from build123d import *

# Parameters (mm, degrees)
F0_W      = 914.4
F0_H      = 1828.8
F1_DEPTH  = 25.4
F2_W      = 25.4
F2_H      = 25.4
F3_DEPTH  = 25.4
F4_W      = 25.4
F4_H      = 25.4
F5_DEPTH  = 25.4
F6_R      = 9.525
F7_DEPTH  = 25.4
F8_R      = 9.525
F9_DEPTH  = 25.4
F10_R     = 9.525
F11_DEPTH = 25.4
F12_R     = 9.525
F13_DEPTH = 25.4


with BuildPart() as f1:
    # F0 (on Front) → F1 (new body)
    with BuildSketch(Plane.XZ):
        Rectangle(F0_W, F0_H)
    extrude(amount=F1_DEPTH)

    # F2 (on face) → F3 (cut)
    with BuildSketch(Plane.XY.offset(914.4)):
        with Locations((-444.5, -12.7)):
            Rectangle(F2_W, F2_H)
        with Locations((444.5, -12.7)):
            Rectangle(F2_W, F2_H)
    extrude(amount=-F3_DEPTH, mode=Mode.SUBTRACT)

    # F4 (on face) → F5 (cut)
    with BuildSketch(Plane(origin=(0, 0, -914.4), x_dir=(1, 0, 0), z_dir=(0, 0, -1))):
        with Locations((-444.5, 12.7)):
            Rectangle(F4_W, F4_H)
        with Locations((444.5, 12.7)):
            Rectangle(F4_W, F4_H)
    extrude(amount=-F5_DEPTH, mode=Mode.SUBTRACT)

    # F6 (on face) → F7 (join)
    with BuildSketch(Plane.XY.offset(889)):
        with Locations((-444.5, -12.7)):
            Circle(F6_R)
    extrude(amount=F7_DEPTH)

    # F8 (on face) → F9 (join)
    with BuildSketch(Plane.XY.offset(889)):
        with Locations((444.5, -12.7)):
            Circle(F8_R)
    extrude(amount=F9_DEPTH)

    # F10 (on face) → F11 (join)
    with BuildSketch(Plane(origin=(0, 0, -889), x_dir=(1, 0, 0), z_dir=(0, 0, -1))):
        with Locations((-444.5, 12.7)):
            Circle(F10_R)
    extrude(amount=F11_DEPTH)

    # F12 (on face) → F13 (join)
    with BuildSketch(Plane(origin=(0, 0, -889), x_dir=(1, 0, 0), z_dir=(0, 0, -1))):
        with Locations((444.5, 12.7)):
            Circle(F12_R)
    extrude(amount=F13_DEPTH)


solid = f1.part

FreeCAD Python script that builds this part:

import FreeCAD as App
import Part
import Sketcher
Q = App.Units.Quantity


def add_polygon(sketch, points):
    """Adds a closed chain of lines whose ends are joined by coincident constraints."""
    first, n = sketch.GeometryCount, len(points)
    for a, b in zip(points, points[1:] + points[:1]):
        sketch.addGeometry(Part.LineSegment(App.Vector(*a, 0), App.Vector(*b, 0)), False)
    for i in range(n):
        sketch.addConstraint(Sketcher.Constraint("Coincident", first + i, 2, first + (i + 1) % n, 1))

doc = App.newDocument("Part")
params = doc.addObject("Spreadsheet::Sheet", "Params")
for row, (alias, value) in enumerate([
    ("sketch1_width", "36 in"),
    ("sketch1_height", "72 in"),
    ("pad1_length", "1 in"),
    ("sketch2_width", "1 in"),
    ("pocket1_length", "1 in"),
    ("sketch3_width", "1 in"),
    ("pocket2_length", "1 in"),
    ("sketch4_diameter", "0.75 in"),
    ("pad2_length", "1 in"),
    ("sketch5_diameter", "0.75 in"),
    ("pad3_length", "1 in"),
    ("sketch6_diameter", "0.75 in"),
    ("pad4_length", "1 in"),
    ("sketch7_diameter", "0.75 in"),
    ("pad5_length", "1 in"),
], start=1):
    params.set(f"A{row}", alias)
    params.set(f"B{row}", "=" + value)
    params.setAlias(f"B{row}", alias)

body = doc.addObject("PartDesign::Body", "Body")

# Sketch on XZ plane
sketch1 = body.newObject("Sketcher::SketchObject", "Sketch")
sketch1.AttachmentSupport = (doc.getObject("XZ_Plane"), [""])
sketch1.MapMode = "FlatFace"
add_polygon(sketch1, [(-457, 914), (-457, -914), (457, -914), (457, 914)])  # lines 0-3
sketch1.addConstraint(Sketcher.Constraint("Vertical", 0))
sketch1.addConstraint(Sketcher.Constraint("Horizontal", 1))
sketch1.addConstraint(Sketcher.Constraint("Vertical", 2))
sketch1.addConstraint(Sketcher.Constraint("Horizontal", 3))
sketch1.addConstraint(Sketcher.Constraint("Symmetric", 0, 2, 2, 2, -1, 1))
sketch1.addConstraint(Sketcher.Constraint("DistanceX", 1, 1, 1, 2, Q("36 in")))
sketch1.addConstraint(Sketcher.Constraint("DistanceY", 0, 2, 0, 1, Q("72 in")))
sketch1.setExpression("Constraints[9]", "Params.sketch1_width")
sketch1.setExpression("Constraints[10]", "Params.sketch1_height")
pad1 = body.newObject("PartDesign::Pad", "Pad")
pad1.Profile = sketch1
pad1.setExpression("Length", "Params.pad1_length")

# Sketch on XY plane
sketch2 = body.newObject("Sketcher::SketchObject", "Sketch001")
sketch2.AttachmentSupport = (doc.getObject("XY_Plane"), [""])
sketch2.MapMode = "FlatFace"
sketch2.AttachmentOffset = App.Placement(App.Vector(0, 0, 36 * 25.4), App.Rotation())
add_polygon(sketch2, [(-457, 0), (-457, -25), (-432, -25), (-432, 0)])  # lines 0-3
add_polygon(sketch2, [(432, 0), (432, -25), (457, -25), (457, 0)])  # lines 4-7
sketch2.addConstraint(Sketcher.Constraint("Vertical", 0))
sketch2.addConstraint(Sketcher.Constraint("Horizontal", 1))
sketch2.addConstraint(Sketcher.Constraint("Vertical", 2))
sketch2.addConstraint(Sketcher.Constraint("Horizontal", 3))
sketch2.addConstraint(Sketcher.Constraint("Vertical", 4))
sketch2.addConstraint(Sketcher.Constraint("Horizontal", 5))
sketch2.addConstraint(Sketcher.Constraint("Vertical", 6))
sketch2.addConstraint(Sketcher.Constraint("Horizontal", 7))
sketch2.addConstraint(Sketcher.Constraint("Symmetric", 3, 2, 6, 2, -1, 1))
sketch2.addConstraint(Sketcher.Constraint("Symmetric", 1, 2, 4, 2, -2))
sketch2.addConstraint(Sketcher.Constraint("PointOnObject", 2, 2, -1))
sketch2.addConstraint(Sketcher.Constraint("Equal", 7, 0))
sketch2.addConstraint(Sketcher.Constraint("DistanceX", 1, 1, 1, 2, Q("1 in")))
sketch2.addConstraint(Sketcher.Constraint("DistanceX", 0, 2, -1, 1, Q("18 in")))
sketch2.setExpression("Constraints[20]", "Params.sketch2_width")
pocket1 = body.newObject("PartDesign::Pocket", "Pocket")
pocket1.Profile = sketch2
pocket1.setExpression("Length", "Params.pocket1_length")

# Sketch on XY plane
sketch3 = body.newObject("Sketcher::SketchObject", "Sketch002")
sketch3.AttachmentSupport = (doc.getObject("XY_Plane"), [""])
sketch3.MapMode = "FlatFace"
sketch3.AttachmentOffset = App.Placement(App.Vector(0, 0, -36 * 25.4), App.Rotation())
add_polygon(sketch3, [(-457, -25), (-457, 0), (-432, 0), (-432, -25)])  # lines 0-3
add_polygon(sketch3, [(432, -25), (432, 0), (457, 0), (457, -25)])  # lines 4-7
sketch3.addConstraint(Sketcher.Constraint("Vertical", 0))
sketch3.addConstraint(Sketcher.Constraint("Horizontal", 1))
sketch3.addConstraint(Sketcher.Constraint("Vertical", 2))
sketch3.addConstraint(Sketcher.Constraint("Horizontal", 3))
sketch3.addConstraint(Sketcher.Constraint("Vertical", 4))
sketch3.addConstraint(Sketcher.Constraint("Horizontal", 5))
sketch3.addConstraint(Sketcher.Constraint("Vertical", 6))
sketch3.addConstraint(Sketcher.Constraint("Horizontal", 7))
sketch3.addConstraint(Sketcher.Constraint("Symmetric", 1, 2, 4, 2, -1, 1))
sketch3.addConstraint(Sketcher.Constraint("Symmetric", 0, 2, 5, 2, -2))
sketch3.addConstraint(Sketcher.Constraint("Horizontal", 3, 2, 6, 2))
sketch3.addConstraint(Sketcher.Constraint("Equal", 7, 0))
sketch3.addConstraint(Sketcher.Constraint("DistanceX", 1, 1, 1, 2, Q("1 in")))
sketch3.addConstraint(Sketcher.Constraint("DistanceX", 0, 2, -1, 1, Q("18 in")))
sketch3.setExpression("Constraints[20]", "Params.sketch3_width")
pocket2 = body.newObject("PartDesign::Pocket", "Pocket001")
pocket2.Profile = sketch3
pocket2.setExpression("Length", "Params.pocket2_length")
pocket2.Reversed = True

# Sketch on XY plane
sketch4 = body.newObject("Sketcher::SketchObject", "Sketch003")
sketch4.AttachmentSupport = (doc.getObject("XY_Plane"), [""])
sketch4.MapMode = "FlatFace"
sketch4.AttachmentOffset = App.Placement(App.Vector(0, 0, 35 * 25.4), App.Rotation())
sketch4.addGeometry(Part.Circle(App.Vector(-444, -13, 0), App.Vector(0, 0, 1), 10), False)
sketch4.addConstraint(Sketcher.Constraint("Diameter", 0, Q("0.75 in")))
sketch4.addConstraint(Sketcher.Constraint("DistanceX", 0, 3, -1, 1, Q("17.5 in")))
sketch4.addConstraint(Sketcher.Constraint("DistanceY", 0, 3, -1, 1, Q("0.5 in")))
sketch4.setExpression("Constraints[0]", "Params.sketch4_diameter")
pad2 = body.newObject("PartDesign::Pad", "Pad001")
pad2.Profile = sketch4
pad2.setExpression("Length", "Params.pad2_length")

# Sketch on XY plane
sketch5 = body.newObject("Sketcher::SketchObject", "Sketch004")
sketch5.AttachmentSupport = (doc.getObject("XY_Plane"), [""])
sketch5.MapMode = "FlatFace"
sketch5.AttachmentOffset = App.Placement(App.Vector(0, 0, 35 * 25.4), App.Rotation())
sketch5.addGeometry(Part.Circle(App.Vector(444, -13, 0), App.Vector(0, 0, 1), 10), False)
sketch5.addConstraint(Sketcher.Constraint("Diameter", 0, Q("0.75 in")))
sketch5.addConstraint(Sketcher.Constraint("DistanceX", -1, 1, 0, 3, Q("17.5 in")))
sketch5.addConstraint(Sketcher.Constraint("DistanceY", 0, 3, -1, 1, Q("0.5 in")))
sketch5.setExpression("Constraints[0]", "Params.sketch5_diameter")
pad3 = body.newObject("PartDesign::Pad", "Pad002")
pad3.Profile = sketch5
pad3.setExpression("Length", "Params.pad3_length")

# Sketch on XY plane
sketch6 = body.newObject("Sketcher::SketchObject", "Sketch005")
sketch6.AttachmentSupport = (doc.getObject("XY_Plane"), [""])
sketch6.MapMode = "FlatFace"
sketch6.AttachmentOffset = App.Placement(App.Vector(0, 0, -35 * 25.4), App.Rotation())
sketch6.addGeometry(Part.Circle(App.Vector(-444, -13, 0), App.Vector(0, 0, 1), 10), False)
sketch6.addConstraint(Sketcher.Constraint("Diameter", 0, Q("0.75 in")))
sketch6.addConstraint(Sketcher.Constraint("DistanceX", 0, 3, -1, 1, Q("17.5 in")))
sketch6.addConstraint(Sketcher.Constraint("DistanceY", 0, 3, -1, 1, Q("0.5 in")))
sketch6.setExpression("Constraints[0]", "Params.sketch6_diameter")
pad4 = body.newObject("PartDesign::Pad", "Pad003")
pad4.Profile = sketch6
pad4.setExpression("Length", "Params.pad4_length")
pad4.Reversed = True

# Sketch on XY plane
sketch7 = body.newObject("Sketcher::SketchObject", "Sketch006")
sketch7.AttachmentSupport = (doc.getObject("XY_Plane"), [""])
sketch7.MapMode = "FlatFace"
sketch7.AttachmentOffset = App.Placement(App.Vector(0, 0, -35 * 25.4), App.Rotation())
sketch7.addGeometry(Part.Circle(App.Vector(444, -13, 0), App.Vector(0, 0, 1), 10), False)
sketch7.addConstraint(Sketcher.Constraint("Diameter", 0, Q("0.75 in")))
sketch7.addConstraint(Sketcher.Constraint("DistanceX", -1, 1, 0, 3, Q("17.5 in")))
sketch7.addConstraint(Sketcher.Constraint("DistanceY", 0, 3, -1, 1, Q("0.5 in")))
sketch7.setExpression("Constraints[0]", "Params.sketch7_diameter")
pad5 = body.newObject("PartDesign::Pad", "Pad004")
pad5.Profile = sketch7
pad5.setExpression("Length", "Params.pad5_length")
pad5.Reversed = True

doc.recompute()
